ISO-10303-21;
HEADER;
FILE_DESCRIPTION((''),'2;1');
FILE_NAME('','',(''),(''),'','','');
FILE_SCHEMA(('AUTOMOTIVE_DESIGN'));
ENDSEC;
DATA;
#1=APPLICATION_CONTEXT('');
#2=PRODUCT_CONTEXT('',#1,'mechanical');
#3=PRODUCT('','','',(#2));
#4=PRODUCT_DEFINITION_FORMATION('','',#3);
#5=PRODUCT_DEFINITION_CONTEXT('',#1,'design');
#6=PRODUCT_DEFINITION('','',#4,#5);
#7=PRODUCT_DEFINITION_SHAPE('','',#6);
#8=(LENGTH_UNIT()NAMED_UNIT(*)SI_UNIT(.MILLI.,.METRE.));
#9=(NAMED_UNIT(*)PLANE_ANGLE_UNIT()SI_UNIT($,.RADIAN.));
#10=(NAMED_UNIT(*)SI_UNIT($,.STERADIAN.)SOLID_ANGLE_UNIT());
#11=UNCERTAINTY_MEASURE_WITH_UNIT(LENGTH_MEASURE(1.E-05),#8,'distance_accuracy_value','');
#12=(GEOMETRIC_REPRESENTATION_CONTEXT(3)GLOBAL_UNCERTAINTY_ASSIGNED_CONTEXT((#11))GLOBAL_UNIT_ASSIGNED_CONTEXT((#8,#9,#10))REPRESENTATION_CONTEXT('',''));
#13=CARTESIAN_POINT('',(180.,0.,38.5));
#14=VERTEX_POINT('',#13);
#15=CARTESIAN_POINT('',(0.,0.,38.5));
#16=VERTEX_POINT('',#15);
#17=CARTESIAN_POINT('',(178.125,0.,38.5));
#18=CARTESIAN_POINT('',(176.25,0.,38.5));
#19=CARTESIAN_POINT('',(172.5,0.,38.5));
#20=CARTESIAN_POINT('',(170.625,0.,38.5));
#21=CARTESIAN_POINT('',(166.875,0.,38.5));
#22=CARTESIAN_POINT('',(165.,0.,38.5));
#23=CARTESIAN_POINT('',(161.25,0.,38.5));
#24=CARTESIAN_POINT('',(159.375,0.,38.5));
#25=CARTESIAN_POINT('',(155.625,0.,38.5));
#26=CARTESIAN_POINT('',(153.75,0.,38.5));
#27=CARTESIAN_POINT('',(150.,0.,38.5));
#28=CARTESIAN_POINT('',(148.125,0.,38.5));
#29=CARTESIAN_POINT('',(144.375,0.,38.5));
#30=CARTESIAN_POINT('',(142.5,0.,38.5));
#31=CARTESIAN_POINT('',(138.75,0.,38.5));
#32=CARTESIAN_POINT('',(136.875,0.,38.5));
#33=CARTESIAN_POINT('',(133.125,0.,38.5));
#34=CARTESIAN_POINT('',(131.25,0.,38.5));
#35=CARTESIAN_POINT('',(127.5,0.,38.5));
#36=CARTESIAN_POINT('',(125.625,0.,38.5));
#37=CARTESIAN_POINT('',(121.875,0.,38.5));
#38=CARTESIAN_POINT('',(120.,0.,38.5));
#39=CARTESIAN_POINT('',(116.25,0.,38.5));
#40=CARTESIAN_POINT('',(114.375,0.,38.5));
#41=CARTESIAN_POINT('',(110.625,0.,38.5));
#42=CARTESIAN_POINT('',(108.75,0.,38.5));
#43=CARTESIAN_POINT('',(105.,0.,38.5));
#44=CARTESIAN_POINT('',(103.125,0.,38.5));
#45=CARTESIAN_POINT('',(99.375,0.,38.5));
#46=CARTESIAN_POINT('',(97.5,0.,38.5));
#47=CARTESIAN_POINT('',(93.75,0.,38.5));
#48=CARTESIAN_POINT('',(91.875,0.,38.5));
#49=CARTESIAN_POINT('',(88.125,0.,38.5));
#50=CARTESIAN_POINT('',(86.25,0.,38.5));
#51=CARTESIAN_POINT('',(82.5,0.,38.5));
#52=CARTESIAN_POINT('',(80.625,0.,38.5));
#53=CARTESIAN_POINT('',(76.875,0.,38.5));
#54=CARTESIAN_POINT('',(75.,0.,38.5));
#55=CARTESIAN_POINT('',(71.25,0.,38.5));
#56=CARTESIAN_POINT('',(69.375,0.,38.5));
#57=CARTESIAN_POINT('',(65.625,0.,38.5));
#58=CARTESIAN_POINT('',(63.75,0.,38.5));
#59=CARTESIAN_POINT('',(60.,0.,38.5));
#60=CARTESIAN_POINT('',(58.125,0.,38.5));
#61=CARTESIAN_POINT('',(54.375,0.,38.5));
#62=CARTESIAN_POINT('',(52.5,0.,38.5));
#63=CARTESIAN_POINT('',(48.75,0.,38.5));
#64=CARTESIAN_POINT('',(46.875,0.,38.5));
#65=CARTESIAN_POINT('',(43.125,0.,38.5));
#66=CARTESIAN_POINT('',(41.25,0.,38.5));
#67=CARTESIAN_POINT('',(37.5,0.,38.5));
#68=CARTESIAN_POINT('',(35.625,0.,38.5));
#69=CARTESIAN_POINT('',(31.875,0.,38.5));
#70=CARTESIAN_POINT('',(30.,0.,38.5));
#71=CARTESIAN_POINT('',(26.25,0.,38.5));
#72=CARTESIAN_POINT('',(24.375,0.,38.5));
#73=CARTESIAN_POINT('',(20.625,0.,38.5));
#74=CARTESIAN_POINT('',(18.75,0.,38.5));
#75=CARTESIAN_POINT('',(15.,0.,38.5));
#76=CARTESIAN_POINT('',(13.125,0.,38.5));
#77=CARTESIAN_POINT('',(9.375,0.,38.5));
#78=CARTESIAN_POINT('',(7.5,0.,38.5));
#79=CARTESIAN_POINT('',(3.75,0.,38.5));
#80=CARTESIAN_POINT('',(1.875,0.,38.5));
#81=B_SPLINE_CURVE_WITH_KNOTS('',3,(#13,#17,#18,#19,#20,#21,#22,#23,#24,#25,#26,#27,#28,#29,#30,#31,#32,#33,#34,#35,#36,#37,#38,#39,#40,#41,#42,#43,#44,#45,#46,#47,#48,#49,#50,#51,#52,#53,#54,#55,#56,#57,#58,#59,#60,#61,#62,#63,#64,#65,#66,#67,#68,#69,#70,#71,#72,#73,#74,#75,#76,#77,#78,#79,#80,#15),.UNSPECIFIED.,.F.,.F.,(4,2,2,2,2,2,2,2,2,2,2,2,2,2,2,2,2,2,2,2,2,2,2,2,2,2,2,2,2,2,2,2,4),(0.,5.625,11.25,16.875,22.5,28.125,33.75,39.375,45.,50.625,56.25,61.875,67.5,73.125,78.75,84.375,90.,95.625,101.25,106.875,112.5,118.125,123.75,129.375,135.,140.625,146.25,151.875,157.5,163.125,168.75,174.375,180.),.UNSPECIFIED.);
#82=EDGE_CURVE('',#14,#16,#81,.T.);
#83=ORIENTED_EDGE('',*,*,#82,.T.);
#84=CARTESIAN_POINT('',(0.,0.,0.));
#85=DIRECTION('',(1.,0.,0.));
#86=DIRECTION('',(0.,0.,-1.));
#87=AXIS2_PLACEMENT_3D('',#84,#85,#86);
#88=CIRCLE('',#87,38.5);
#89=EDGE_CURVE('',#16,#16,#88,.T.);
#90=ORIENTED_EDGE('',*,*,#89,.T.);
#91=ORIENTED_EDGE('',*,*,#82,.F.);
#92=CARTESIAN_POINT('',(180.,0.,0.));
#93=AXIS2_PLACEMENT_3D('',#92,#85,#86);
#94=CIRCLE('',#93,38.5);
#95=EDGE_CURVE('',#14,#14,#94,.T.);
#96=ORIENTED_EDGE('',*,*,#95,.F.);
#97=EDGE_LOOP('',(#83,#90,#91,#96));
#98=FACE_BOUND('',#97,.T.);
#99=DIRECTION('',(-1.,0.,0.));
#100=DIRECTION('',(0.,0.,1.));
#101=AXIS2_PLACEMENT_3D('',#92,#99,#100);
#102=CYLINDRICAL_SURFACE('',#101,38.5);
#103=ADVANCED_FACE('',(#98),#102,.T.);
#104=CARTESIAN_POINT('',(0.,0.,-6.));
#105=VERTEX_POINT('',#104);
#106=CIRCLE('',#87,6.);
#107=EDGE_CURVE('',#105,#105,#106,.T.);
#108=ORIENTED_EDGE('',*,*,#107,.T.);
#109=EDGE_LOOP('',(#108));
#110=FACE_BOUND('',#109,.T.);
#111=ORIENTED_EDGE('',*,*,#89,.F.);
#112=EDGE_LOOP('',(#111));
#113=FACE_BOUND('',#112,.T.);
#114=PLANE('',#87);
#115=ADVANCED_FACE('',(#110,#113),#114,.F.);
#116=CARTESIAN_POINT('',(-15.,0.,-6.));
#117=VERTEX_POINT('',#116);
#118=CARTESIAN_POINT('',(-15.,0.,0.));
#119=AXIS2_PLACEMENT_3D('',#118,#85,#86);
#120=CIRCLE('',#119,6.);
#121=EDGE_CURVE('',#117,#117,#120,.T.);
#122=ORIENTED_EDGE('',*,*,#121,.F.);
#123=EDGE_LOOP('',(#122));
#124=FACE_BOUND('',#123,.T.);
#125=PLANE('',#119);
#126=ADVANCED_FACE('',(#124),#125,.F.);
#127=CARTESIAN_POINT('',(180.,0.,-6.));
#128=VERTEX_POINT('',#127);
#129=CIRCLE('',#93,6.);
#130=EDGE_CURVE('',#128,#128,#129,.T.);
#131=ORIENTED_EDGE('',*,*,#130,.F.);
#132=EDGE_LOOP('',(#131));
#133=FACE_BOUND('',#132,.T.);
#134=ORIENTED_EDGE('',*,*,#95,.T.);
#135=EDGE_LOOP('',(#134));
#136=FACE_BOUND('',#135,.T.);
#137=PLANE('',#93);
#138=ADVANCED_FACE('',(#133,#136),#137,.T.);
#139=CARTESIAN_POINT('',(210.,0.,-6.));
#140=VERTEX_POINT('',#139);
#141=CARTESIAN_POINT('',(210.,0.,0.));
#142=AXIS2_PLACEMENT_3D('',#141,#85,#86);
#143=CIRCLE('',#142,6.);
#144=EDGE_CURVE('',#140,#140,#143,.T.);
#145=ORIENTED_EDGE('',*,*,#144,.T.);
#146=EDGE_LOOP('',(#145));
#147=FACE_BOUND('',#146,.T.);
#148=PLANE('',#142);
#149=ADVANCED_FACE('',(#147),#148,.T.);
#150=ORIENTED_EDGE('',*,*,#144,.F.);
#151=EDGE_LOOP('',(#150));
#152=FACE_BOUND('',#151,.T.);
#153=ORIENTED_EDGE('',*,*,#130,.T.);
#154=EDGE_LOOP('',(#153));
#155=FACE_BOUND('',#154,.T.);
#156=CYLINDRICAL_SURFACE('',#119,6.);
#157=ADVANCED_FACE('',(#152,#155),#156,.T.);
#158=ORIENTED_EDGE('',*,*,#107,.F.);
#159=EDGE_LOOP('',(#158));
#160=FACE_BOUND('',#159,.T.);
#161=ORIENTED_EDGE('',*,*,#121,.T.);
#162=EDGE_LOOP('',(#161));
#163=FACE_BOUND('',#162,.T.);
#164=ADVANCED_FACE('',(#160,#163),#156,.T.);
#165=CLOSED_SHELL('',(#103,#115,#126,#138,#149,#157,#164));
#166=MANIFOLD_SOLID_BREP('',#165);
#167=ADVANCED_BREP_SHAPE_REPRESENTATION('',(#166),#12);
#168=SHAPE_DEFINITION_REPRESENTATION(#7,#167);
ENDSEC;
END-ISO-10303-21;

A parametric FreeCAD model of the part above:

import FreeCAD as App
import Part
import Sketcher
Q = App.Units.Quantity

doc = App.newDocument("Part")
body = doc.addObject("PartDesign::Body", "Body")

sketch1 = body.newObject("Sketcher::SketchObject", "Sketch")
sketch1.AttachmentSupport = (doc.getObject("YZ_Plane"), [""])
sketch1.MapMode = "FlatFace"
sketch1.addGeometry([
    Part.Circle(App.Vector(0, 0, 0), App.Vector(0, 0, 1), 38),
    Part.Circle(App.Vector(0, 0, 0), App.Vector(0, 0, 1), 6),
], False)
sketch1.addConstraint([
    Sketcher.Constraint("Coincident", 0, 3, -1, 1),
    Sketcher.Constraint("Coincident", 1, 3, -1, 1),
    Sketcher.Constraint("Diameter", 0, Q("77 mm")),
    Sketcher.Constraint("Diameter", 1, Q("12 mm")),
])
pad1 = body.newObject("PartDesign::Pad", "Pad")
pad1.Profile = sketch1
pad1.Length = 180

sketch2 = body.newObject("Sketcher::SketchObject", "Sketch001")
sketch2.AttachmentSupport = (doc.getObject("YZ_Plane"), [""])
sketch2.MapMode = "FlatFace"
sketch2.addGeometry(Part.Circle(App.Vector(0, 0, 0), App.Vector(0, 0, 1), 6), False)
sketch2.addConstraint([
    Sketcher.Constraint("Coincident", 0, 3, -1, 1),
    Sketcher.Constraint("Diameter", 0, Q("12 mm")),
])
pad2 = body.newObject("PartDesign::Pad", "Pad001")
pad2.Profile = sketch2
pad2.Type = "TwoLengths"
pad2.Length = 210
pad2.Length2 = 15

doc.recompute()
